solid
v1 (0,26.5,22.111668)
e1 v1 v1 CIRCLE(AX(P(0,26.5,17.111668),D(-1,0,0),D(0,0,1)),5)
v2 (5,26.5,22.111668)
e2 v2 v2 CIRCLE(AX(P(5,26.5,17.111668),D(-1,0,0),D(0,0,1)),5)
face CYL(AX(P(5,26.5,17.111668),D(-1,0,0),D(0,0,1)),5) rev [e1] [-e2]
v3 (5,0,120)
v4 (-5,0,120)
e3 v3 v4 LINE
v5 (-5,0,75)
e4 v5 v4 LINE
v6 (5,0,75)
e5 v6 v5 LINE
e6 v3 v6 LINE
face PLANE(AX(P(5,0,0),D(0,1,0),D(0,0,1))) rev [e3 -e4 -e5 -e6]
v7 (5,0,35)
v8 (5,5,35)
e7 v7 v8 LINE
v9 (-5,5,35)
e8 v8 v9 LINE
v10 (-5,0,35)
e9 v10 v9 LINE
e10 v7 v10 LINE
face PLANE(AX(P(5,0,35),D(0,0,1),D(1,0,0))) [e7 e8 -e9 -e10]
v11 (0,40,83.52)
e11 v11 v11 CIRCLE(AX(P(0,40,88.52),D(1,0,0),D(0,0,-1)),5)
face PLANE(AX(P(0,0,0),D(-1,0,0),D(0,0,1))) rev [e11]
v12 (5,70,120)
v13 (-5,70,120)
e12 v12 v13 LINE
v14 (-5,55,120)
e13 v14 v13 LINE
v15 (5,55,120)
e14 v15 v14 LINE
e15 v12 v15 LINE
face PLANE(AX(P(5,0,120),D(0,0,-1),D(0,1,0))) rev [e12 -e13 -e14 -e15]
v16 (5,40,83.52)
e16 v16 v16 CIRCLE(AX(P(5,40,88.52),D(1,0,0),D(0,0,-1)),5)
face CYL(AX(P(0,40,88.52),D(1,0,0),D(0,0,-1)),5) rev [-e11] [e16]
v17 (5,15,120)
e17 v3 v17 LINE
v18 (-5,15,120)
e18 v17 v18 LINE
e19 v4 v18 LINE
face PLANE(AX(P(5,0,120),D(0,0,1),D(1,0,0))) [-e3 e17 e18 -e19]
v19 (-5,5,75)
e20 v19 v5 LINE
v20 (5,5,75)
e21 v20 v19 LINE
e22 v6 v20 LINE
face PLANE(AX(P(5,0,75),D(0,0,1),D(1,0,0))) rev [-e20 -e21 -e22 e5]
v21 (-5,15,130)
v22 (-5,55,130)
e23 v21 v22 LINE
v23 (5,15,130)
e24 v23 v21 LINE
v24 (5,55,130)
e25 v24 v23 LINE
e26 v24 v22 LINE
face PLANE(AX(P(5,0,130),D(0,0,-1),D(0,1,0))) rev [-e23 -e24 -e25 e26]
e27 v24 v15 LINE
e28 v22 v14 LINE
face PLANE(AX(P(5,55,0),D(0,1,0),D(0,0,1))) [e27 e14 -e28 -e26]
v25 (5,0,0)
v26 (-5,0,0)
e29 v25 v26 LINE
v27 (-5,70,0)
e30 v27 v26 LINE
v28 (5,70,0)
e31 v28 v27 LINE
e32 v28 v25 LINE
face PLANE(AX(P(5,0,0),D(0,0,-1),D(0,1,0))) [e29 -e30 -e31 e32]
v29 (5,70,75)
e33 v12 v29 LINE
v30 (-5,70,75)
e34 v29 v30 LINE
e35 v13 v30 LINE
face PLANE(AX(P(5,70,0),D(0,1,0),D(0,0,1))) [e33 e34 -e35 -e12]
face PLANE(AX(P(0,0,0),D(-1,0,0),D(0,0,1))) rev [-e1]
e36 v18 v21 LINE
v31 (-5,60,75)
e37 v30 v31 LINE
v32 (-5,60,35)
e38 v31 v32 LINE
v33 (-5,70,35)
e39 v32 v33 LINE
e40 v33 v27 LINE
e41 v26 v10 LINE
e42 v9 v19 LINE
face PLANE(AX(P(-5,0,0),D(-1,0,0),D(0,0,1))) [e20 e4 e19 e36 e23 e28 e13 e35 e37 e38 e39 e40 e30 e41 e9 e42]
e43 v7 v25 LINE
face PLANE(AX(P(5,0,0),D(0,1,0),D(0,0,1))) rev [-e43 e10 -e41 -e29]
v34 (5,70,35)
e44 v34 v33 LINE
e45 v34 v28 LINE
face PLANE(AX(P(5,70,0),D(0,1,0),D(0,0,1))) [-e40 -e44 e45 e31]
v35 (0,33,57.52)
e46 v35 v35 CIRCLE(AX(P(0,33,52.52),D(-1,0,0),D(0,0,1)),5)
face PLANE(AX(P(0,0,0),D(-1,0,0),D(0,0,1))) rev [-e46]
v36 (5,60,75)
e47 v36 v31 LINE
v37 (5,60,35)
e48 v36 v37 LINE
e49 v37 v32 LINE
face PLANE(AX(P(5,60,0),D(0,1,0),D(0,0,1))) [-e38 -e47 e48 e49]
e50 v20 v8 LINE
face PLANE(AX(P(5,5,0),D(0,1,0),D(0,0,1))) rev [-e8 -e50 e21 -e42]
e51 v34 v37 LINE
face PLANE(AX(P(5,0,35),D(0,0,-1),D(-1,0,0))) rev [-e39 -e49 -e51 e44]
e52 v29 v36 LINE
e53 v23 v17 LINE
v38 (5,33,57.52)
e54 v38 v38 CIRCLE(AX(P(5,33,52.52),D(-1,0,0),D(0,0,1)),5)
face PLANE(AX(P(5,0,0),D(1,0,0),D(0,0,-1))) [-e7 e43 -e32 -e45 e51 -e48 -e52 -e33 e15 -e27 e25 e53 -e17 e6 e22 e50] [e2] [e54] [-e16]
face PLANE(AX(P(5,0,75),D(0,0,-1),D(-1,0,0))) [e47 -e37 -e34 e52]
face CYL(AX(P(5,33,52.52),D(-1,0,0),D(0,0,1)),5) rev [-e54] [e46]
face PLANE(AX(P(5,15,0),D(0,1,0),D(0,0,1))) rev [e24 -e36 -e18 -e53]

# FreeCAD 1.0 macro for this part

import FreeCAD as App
import Part
import Sketcher
Q = App.Units.Quantity


def add_polygon(sketch, points):
    """Adds a closed chain of lines whose ends are joined by coincident constraints."""
    first, n = sketch.GeometryCount, len(points)
    for a, b in zip(points, points[1:] + points[:1]):
        sketch.addGeometry(Part.LineSegment(App.Vector(*a, 0), App.Vector(*b, 0)), False)
    for i in range(n):
        sketch.addConstraint(Sketcher.Constraint("Coincident", first + i, 2, first + (i + 1) % n, 1))

doc = App.newDocument("Part")
body = doc.addObject("PartDesign::Body", "Body")

sketch1 = doc.addObject("Sketcher::SketchObject", "Sketch")
body.addObject(sketch1)
sketch1.AttachmentSupport = (doc.YZ_Plane, [""])
sketch1.MapMode = "FlatFace"
add_polygon(sketch1, [(70, 75), (70, 120), (55, 120), (55, 130), (15, 130), (15, 120), (0, 120), (0, 75), (5, 75), (5, 35), (0, 35), (0, 0), (70, 0), (70, 35), (60, 35), (60, 75)])
sketch1.addConstraint(Sketcher.Constraint("Vertical", 0))
sketch1.addConstraint(Sketcher.Constraint("Horizontal", 1))
sketch1.addConstraint(Sketcher.Constraint("Vertical", 2))
sketch1.addConstraint(Sketcher.Constraint("Horizontal", 3))
sketch1.addConstraint(Sketcher.Constraint("Vertical", 4))
sketch1.addConstraint(Sketcher.Constraint("Horizontal", 5))
sketch1.addConstraint(Sketcher.Constraint("Vertical", 6))
sketch1.addConstraint(Sketcher.Constraint("Horizontal", 7))
sketch1.addConstraint(Sketcher.Constraint("Vertical", 8))
sketch1.addConstraint(Sketcher.Constraint("Horizontal", 9))
sketch1.addConstraint(Sketcher.Constraint("Vertical", 10))
sketch1.addConstraint(Sketcher.Constraint("Horizontal", 11))
sketch1.addConstraint(Sketcher.Constraint("Vertical", 12))
sketch1.addConstraint(Sketcher.Constraint("Horizontal", 13))
sketch1.addConstraint(Sketcher.Constraint("Vertical", 14))
sketch1.addConstraint(Sketcher.Constraint("Horizontal", 15))
sketch1.addConstraint(Sketcher.Constraint("Coincident", 10, 2, -1, 1))
sketch1.addConstraint(Sketcher.Constraint("PointOnObject", 5, 2, -2))
sketch1.addConstraint(Sketcher.Constraint("Horizontal", 1, 2, 4, 2))
sketch1.addConstraint(Sketcher.Constraint("Horizontal", 9, 2, 12, 2))
sketch1.addConstraint(Sketcher.Constraint("Horizontal", 7, 2, 14, 2))
sketch1.addConstraint(Sketcher.Constraint("Vertical", 0, 2, 11, 2))
sketch1.addConstraint(Sketcher.Constraint("Equal", 1, 5))
sketch1.addConstraint(Sketcher.Constraint("Equal", 15, 2))
sketch1.addConstraint(Sketcher.Constraint("Equal", 3, 8))
sketch1.addConstraint(Sketcher.Constraint("DistanceX", 1, 2, 1, 1, Q("15 mm")))
sketch1.addConstraint(Sketcher.Constraint("DistanceX", 3, 2, 3, 1, Q("40 mm")))
sketch1.addConstraint(Sketcher.Constraint("DistanceX", 7, 1, 7, 2, Q("5 mm")))
sketch1.addConstraint(Sketcher.Constraint("DistanceX", 13, 2, 13, 1, Q("10 mm")))
sketch1.addConstraint(Sketcher.Constraint("DistanceY", 0, 1, 0, 2, Q("45 mm")))
sketch1.addConstraint(Sketcher.Constraint("DistanceY", 10, 2, 10, 1, Q("35 mm")))
pad1 = doc.addObject("PartDesign::Pad", "Pad")
body.addObject(pad1)
pad1.Profile = sketch1
pad1.Length = 5

sketch2 = doc.addObject("Sketcher::SketchObject", "Sketch001")
body.addObject(sketch2)
sketch2.AttachmentSupport = (doc.YZ_Plane, [""])
sketch2.MapMode = "FlatFace"
sketch2.addGeometry(Part.Circle(App.Vector(26, 17, 0), App.Vector(0, 0, 1), 5), False)
sketch2.addGeometry(Part.Circle(App.Vector(33, 53, 0), App.Vector(0, 0, 1), 5), False)
sketch2.addConstraint(Sketcher.Constraint("Equal", 0, 1))
sketch2.addConstraint(Sketcher.Constraint("Diameter", 0, Q("10 mm")))
sketch2.addConstraint(Sketcher.Constraint("DistanceX", -1, 1, 1, 3, Q("33 mm")))
sketch2.addConstraint(Sketcher.Constraint("DistanceX", -1, 1, 0, 3, Q("26.5 mm")))
sketch2.addConstraint(Sketcher.Constraint("DistanceY", -1, 1, 1, 3, Q("52.52 mm")))
sketch2.addConstraint(Sketcher.Constraint("DistanceY", -1, 1, 0, 3, Q("17.111668 mm")))
pocket1 = doc.addObject("PartDesign::Pocket", "Pocket")
body.addObject(pocket1)
pocket1.Profile = sketch2
pocket1.Length = 5
pocket1.Reversed = True

sketch3 = doc.addObject("Sketcher::SketchObject", "Sketch002")
body.addObject(sketch3)
sketch3.AttachmentSupport = (doc.YZ_Plane, [""])
sketch3.MapMode = "FlatFace"
sketch3.AttachmentOffset = App.Placement(App.Vector(0, 0, 5), App.Rotation())
sketch3.addGeometry(Part.Circle(App.Vector(40, 89, 0), App.Vector(0, 0, 1), 5), False)
sketch3.addConstraint(Sketcher.Constraint("Diameter", 0, Q("10 mm")))
sketch3.addConstraint(Sketcher.Constraint("DistanceX", -1, 1, 0, 3, Q("40 mm")))
sketch3.addConstraint(Sketcher.Constraint("DistanceY", -1, 1, 0, 3, Q("88.52 mm")))
pocket2 = doc.addObject("PartDesign::Pocket", "Pocket001")
body.addObject(pocket2)
pocket2.Profile = sketch3
pocket2.Length = 5

sketch4 = doc.addObject("Sketcher::SketchObject", "Sketch003")
body.addObject(sketch4)
sketch4.AttachmentSupport = (doc.YZ_Plane, [""])
sketch4.MapMode = "FlatFace"
add_polygon(sketch4, [(0, 35), (5, 35), (5, 75), (0, 75), (0, 120), (15, 120), (15, 130), (55, 130), (55, 120), (70, 120), (70, 75), (60, 75), (60, 35), (70, 35), (70, 0), (0, 0)])
sketch4.addConstraint(Sketcher.Constraint("Horizontal", 0))
sketch4.addConstraint(Sketcher.Constraint("Vertical", 1))
sketch4.addConstraint(Sketcher.Constraint("Horizontal", 2))
sketch4.addConstraint(Sketcher.Constraint("Vertical", 3))
sketch4.addConstraint(Sketcher.Constraint("Horizontal", 4))
sketch4.addConstraint(Sketcher.Constraint("Vertical", 5))
sketch4.addConstraint(Sketcher.Constraint("Horizontal", 6))
sketch4.addConstraint(Sketcher.Constraint("Vertical", 7))
sketch4.addConstraint(Sketcher.Constraint("Horizontal", 8))
sketch4.addConstraint(Sketcher.Constraint("Vertical", 9))
sketch4.addConstraint(Sketcher.Constraint("Horizontal", 10))
sketch4.addConstraint(Sketcher.Constraint("Vertical", 11))
sketch4.addConstraint(Sketcher.Constraint("Horizontal", 12))
sketch4.addConstraint(Sketcher.Constraint("Vertical", 13))
sketch4.addConstraint(Sketcher.Constraint("Horizontal", 14))
sketch4.addConstraint(Sketcher.Constraint("Vertical", 15))
sketch4.addConstraint(Sketcher.Constraint("Coincident", 14, 2, -1, 1))
sketch4.addConstraint(Sketcher.Constraint("PointOnObject", 2, 2, -2))
sketch4.addConstraint(Sketcher.Constraint("Horizontal", 4, 2, 7, 2))
sketch4.addConstraint(Sketcher.Constraint("Horizontal", 2, 2, 9, 2))
sketch4.addConstraint(Sketcher.Constraint("Horizontal", 0, 2, 11, 2))
sketch4.addConstraint(Sketcher.Constraint("Vertical", 9, 2, 12, 2))
sketch4.addConstraint(Sketcher.Constraint("Equal", 4, 8))
sketch4.addConstraint(Sketcher.Constraint("Equal", 6, 1))
sketch4.addConstraint(Sketcher.Constraint("Equal", 12, 5))
sketch4.addConstraint(Sketcher.Constraint("DistanceX", 0, 1, 0, 2, Q("5 mm")))
sketch4.addConstraint(Sketcher.Constraint("DistanceX", 4, 1, 4, 2, Q("15 mm")))
sketch4.addConstraint(Sketcher.Constraint("DistanceX", 6, 1, 6, 2, Q("40 mm")))
sketch4.addConstraint(Sketcher.Constraint("DistanceX", 10, 2, 10, 1, Q("10 mm")))
sketch4.addConstraint(Sketcher.Constraint("DistanceY", 3, 1, 3, 2, Q("45 mm")))
sketch4.addConstraint(Sketcher.Constraint("DistanceY", 13, 2, 13, 1, Q("35 mm")))
pad2 = doc.addObject("PartDesign::Pad", "Pad001")
body.addObject(pad2)
pad2.Profile = sketch4
pad2.Length = 5
pad2.Reversed = True

doc.recompute()
